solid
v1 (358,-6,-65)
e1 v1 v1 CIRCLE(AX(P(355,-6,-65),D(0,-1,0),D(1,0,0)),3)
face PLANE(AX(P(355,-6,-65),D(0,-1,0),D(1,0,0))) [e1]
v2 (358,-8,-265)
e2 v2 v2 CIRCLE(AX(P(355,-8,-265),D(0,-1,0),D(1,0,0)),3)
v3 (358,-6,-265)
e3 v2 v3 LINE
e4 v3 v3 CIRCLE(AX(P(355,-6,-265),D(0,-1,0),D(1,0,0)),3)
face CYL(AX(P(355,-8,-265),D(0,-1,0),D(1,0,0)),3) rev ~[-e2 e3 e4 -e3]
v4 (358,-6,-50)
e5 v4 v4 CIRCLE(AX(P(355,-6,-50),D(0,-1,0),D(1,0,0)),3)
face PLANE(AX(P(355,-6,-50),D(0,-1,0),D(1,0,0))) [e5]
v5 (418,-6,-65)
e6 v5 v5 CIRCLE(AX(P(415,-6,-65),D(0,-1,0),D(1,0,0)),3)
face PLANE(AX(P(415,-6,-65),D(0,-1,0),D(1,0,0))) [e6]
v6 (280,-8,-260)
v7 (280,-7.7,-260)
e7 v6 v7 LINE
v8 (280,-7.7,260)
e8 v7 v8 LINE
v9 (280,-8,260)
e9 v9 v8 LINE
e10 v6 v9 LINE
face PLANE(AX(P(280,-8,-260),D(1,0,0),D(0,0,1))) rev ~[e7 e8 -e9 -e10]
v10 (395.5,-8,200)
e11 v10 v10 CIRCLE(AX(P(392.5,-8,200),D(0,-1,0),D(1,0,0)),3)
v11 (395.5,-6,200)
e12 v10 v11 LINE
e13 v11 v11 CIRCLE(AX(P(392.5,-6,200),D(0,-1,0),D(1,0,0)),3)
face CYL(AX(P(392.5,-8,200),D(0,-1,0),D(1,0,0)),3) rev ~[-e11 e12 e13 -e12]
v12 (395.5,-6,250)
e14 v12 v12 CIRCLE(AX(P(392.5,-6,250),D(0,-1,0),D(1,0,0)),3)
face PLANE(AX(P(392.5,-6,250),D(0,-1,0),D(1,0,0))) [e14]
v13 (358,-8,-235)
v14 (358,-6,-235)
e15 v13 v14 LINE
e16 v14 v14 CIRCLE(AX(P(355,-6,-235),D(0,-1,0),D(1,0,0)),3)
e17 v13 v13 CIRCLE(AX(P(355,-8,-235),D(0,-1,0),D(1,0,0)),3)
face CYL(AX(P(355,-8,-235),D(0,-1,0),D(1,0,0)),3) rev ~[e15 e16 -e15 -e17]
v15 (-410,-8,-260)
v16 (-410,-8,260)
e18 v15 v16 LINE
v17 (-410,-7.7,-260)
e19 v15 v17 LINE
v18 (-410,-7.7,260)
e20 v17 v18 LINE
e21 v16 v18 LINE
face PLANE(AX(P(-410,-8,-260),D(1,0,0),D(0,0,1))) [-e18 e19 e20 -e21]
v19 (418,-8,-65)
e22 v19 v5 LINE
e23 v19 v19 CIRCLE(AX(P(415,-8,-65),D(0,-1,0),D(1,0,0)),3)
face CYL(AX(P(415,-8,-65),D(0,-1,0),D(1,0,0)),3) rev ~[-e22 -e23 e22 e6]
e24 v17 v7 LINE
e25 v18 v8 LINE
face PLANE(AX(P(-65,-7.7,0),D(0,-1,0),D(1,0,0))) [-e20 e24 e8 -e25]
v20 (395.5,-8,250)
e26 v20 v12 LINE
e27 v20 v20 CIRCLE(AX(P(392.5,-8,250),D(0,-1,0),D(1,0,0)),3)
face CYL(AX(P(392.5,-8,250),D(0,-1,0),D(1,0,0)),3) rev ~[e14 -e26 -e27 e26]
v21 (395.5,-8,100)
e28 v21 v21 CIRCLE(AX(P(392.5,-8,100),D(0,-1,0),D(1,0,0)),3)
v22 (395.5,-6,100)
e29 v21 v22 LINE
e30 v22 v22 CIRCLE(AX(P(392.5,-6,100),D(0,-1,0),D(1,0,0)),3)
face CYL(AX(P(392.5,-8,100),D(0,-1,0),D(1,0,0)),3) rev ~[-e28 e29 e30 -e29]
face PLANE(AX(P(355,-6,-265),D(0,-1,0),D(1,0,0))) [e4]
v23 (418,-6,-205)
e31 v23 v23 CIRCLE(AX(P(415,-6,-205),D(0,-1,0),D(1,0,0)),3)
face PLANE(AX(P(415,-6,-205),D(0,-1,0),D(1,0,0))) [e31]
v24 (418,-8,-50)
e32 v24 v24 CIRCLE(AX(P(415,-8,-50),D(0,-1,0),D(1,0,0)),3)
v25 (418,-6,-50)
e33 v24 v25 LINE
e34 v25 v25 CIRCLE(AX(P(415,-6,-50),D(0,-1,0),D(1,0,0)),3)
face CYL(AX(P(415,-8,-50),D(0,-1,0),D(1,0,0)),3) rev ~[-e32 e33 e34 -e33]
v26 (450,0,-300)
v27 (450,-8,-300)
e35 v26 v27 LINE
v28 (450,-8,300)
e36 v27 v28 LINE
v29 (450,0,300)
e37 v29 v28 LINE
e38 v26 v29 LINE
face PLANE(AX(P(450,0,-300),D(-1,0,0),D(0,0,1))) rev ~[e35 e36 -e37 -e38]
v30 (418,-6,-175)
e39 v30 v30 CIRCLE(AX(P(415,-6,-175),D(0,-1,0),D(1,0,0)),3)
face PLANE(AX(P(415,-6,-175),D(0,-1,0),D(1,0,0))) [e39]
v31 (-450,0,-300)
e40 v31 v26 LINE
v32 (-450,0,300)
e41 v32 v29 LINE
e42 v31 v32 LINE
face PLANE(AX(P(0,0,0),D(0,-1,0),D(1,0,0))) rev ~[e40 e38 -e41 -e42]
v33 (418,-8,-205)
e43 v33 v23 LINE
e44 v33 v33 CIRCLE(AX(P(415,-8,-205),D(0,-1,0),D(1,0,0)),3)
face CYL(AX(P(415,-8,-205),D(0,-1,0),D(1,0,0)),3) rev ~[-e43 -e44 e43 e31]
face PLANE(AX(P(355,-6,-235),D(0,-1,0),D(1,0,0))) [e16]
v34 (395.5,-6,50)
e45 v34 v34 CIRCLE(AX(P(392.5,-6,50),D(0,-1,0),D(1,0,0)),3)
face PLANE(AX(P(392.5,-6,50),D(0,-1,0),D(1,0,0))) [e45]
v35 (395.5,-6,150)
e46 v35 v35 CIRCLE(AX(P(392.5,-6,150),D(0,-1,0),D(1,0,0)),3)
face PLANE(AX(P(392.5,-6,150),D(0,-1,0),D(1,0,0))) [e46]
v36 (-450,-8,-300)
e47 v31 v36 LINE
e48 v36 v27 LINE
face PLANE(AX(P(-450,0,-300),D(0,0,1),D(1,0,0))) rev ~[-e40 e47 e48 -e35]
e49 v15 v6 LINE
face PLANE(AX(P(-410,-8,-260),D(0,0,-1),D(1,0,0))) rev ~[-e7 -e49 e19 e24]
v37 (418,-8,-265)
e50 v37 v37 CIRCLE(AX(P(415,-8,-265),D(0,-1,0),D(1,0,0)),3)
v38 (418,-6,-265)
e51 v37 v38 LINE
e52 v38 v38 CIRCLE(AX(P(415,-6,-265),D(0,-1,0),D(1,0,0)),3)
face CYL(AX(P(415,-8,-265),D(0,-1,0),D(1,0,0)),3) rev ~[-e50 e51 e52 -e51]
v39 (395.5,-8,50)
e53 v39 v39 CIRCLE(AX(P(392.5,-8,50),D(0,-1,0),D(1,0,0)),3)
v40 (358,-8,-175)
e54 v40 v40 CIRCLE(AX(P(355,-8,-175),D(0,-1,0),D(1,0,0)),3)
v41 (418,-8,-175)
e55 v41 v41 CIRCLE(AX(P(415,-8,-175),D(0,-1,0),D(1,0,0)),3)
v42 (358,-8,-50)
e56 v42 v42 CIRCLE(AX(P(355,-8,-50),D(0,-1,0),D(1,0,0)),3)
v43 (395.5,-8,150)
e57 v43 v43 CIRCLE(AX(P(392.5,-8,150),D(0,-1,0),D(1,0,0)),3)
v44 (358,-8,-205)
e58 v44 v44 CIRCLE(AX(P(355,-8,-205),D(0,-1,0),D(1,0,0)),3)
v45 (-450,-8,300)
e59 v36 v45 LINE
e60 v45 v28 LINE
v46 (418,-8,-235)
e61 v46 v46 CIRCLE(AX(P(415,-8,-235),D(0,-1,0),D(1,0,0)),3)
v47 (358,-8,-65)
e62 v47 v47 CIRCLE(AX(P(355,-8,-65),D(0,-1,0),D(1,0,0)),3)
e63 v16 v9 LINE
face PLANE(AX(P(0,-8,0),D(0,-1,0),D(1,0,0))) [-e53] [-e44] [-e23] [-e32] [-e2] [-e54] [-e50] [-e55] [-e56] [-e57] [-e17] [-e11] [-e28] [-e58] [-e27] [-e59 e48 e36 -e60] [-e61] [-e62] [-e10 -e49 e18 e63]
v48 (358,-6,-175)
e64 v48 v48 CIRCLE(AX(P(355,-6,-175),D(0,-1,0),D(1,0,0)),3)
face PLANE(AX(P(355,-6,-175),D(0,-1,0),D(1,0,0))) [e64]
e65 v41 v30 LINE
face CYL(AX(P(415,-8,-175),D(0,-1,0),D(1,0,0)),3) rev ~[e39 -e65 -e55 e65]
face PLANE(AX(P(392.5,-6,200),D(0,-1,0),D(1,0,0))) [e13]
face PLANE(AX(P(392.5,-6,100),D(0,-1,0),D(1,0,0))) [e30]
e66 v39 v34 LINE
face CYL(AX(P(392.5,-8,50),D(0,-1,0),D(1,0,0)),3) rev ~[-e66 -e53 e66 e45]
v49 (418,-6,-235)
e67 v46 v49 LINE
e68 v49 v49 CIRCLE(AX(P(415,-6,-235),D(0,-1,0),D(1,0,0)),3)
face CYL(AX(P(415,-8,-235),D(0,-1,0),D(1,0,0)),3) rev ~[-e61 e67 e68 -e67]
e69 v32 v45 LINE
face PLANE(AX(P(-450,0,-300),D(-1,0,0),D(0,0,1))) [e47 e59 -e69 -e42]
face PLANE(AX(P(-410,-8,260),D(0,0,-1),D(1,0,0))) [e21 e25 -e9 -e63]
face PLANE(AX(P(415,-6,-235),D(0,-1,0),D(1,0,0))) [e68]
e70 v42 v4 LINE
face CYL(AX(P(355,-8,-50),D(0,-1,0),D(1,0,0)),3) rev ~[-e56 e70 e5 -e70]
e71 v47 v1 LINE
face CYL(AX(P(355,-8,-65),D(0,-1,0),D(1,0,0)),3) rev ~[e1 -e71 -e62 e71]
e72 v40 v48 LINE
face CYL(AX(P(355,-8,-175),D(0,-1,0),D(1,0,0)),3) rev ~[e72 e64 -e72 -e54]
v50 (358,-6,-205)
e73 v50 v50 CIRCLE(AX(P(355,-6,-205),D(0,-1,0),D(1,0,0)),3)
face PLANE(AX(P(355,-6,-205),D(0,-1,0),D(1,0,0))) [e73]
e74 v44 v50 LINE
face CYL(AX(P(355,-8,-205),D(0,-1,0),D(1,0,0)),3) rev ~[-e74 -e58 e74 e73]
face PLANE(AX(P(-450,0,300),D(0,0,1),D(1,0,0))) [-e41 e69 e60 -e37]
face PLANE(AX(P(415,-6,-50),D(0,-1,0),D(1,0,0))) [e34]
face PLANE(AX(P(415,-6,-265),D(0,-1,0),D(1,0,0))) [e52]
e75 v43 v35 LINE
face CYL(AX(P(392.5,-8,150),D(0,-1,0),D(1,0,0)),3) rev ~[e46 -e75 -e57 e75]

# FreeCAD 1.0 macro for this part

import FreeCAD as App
import Part
import Sketcher


def add_polygon(sketch, points):
    """Adds a closed chain of lines whose ends are joined by coincident constraints."""
    first, n = sketch.GeometryCount, len(points)
    for a, b in zip(points, points[1:] + points[:1]):
        sketch.addGeometry(Part.LineSegment(App.Vector(*a, 0), App.Vector(*b, 0)), False)
    for i in range(n):
        sketch.addConstraint(Sketcher.Constraint("Coincident", first + i, 2, first + (i + 1) % n, 1))

doc = App.newDocument("Part")
body = doc.addObject("PartDesign::Body", "Body")

# Sketch on XZ plane
sketch1 = body.newObject("Sketcher::SketchObject", "Sketch")
sketch1.AttachmentSupport = (doc.getObject("XZ_Plane"), [""])
sketch1.MapMode = "FlatFace"
add_polygon(sketch1, [(-450, 300), (-450, -300), (450, -300), (450, 300)])  # lines 0-3
sketch1.addConstraint([
    Sketcher.Constraint("Vertical", 0),
    Sketcher.Constraint("Horizontal", 1),
    Sketcher.Constraint("Vertical", 2),
    Sketcher.Constraint("Horizontal", 3),
    Sketcher.Constraint("Symmetric", 0, 2, 2, 2, -1, 1),
    Sketcher.Constraint("DistanceX", 1, 1, 1, 2, 900.0),
    Sketcher.Constraint("DistanceY", 0, 2, 0, 1, 600.0),
])
pad1 = body.newObject("PartDesign::Pad", "Pad")
pad1.Profile = sketch1
pad1.Length = 8

# Sketch on XZ plane
sketch2 = body.newObject("Sketcher::SketchObject", "Sketch001")
sketch2.AttachmentSupport = (doc.getObject("XZ_Plane"), [""])
sketch2.MapMode = "FlatFace"
sketch2.AttachmentOffset = App.Placement(App.Vector(0, 0, 8), App.Rotation())
add_polygon(sketch2, [(-410, 260), (-410, -260), (280, -260), (280, 260)])  # lines 0-3
sketch2.addConstraint([
    Sketcher.Constraint("Vertical", 0),
    Sketcher.Constraint("Horizontal", 1),
    Sketcher.Constraint("Vertical", 2),
    Sketcher.Constraint("Horizontal", 3),
    Sketcher.Constraint("DistanceX", 1, 1, 1, 2, 690.0),
    Sketcher.Constraint("DistanceY", 0, 2, 0, 1, 520.0),
    Sketcher.Constraint("DistanceX", 0, 2, -1, 1, 410.0),
    Sketcher.Constraint("DistanceY", 0, 2, -1, 1, 260.0),
])
pocket1 = body.newObject("PartDesign::Pocket", "Pocket")
pocket1.Profile = sketch2
pocket1.Length = 0.3

# Sketch on XZ plane
sketch3 = body.newObject("Sketcher::SketchObject", "Sketch002")
sketch3.AttachmentSupport = (doc.getObject("XZ_Plane"), [""])
sketch3.MapMode = "FlatFace"
sketch3.AttachmentOffset = App.Placement(App.Vector(0, 0, 8), App.Rotation())
sketch3.addGeometry([
    Part.Circle(App.Vector(392.5, 100, 0), App.Vector(0, 0, 1), 3),  # 0
    Part.Circle(App.Vector(392.5, 150, 0), App.Vector(0, 0, 1), 3),  # 1
    Part.Circle(App.Vector(415, -65, 0), App.Vector(0, 0, 1), 3),  # 2
    Part.Circle(App.Vector(392.5, 50, 0), App.Vector(0, 0, 1), 3),  # 3
    Part.Circle(App.Vector(355, -50, 0), App.Vector(0, 0, 1), 3),  # 4
    Part.Circle(App.Vector(415, -50, 0), App.Vector(0, 0, 1), 3),  # 5
    Part.Circle(App.Vector(415, -175, 0), App.Vector(0, 0, 1), 3),  # 6
    Part.Circle(App.Vector(415, -205, 0), App.Vector(0, 0, 1), 3),  # 7
    Part.Circle(App.Vector(415, -235, 0), App.Vector(0, 0, 1), 3),  # 8
    Part.Circle(App.Vector(415, -265, 0), App.Vector(0, 0, 1), 3),  # 9
    Part.Circle(App.Vector(355, -265, 0), App.Vector(0, 0, 1), 3),  # 10
    Part.Circle(App.Vector(355, -65, 0), App.Vector(0, 0, 1), 3),  # 11
    Part.Circle(App.Vector(355, -175, 0), App.Vector(0, 0, 1), 3),  # 12
    Part.Circle(App.Vector(355, -205, 0), App.Vector(0, 0, 1), 3),  # 13
    Part.Circle(App.Vector(355, -235, 0), App.Vector(0, 0, 1), 3),  # 14
    Part.Circle(App.Vector(392.5, 200, 0), App.Vector(0, 0, 1), 3),  # 15
    Part.Circle(App.Vector(392.5, 250, 0), App.Vector(0, 0, 1), 3),  # 16
], False)
sketch3.addConstraint([
    Sketcher.Constraint("Equal", 0, 1),
    Sketcher.Constraint("Equal", 1, 2),
    Sketcher.Constraint("Equal", 2, 3),
    Sketcher.Constraint("Equal", 3, 4),
    Sketcher.Constraint("Equal", 4, 5),
    Sketcher.Constraint("Equal", 5, 6),
    Sketcher.Constraint("Equal", 6, 7),
    Sketcher.Constraint("Equal", 7, 8),
    Sketcher.Constraint("Equal", 8, 9),
    Sketcher.Constraint("Equal", 9, 10),
    Sketcher.Constraint("Equal", 10, 11),
    Sketcher.Constraint("Equal", 11, 12),
    Sketcher.Constraint("Equal", 12, 13),
    Sketcher.Constraint("Equal", 13, 14),
    Sketcher.Constraint("Equal", 14, 15),
    Sketcher.Constraint("Equal", 15, 16),
    Sketcher.Constraint("Horizontal", 4, 3, 5, 3),
    Sketcher.Constraint("Horizontal", 9, 3, 10, 3),
    Sketcher.Constraint("Horizontal", 2, 3, 11, 3),
    Sketcher.Constraint("Horizontal", 6, 3, 12, 3),
    Sketcher.Constraint("Horizontal", 7, 3, 13, 3),
    Sketcher.Constraint("Horizontal", 8, 3, 14, 3),
    Sketcher.Constraint("Vertical", 0, 3, 1, 3),
    Sketcher.Constraint("Vertical", 1, 3, 3, 3),
    Sketcher.Constraint("Vertical", 2, 3, 5, 3),
    Sketcher.Constraint("Vertical", 5, 3, 6, 3),
    Sketcher.Constraint("Vertical", 6, 3, 7, 3),
    Sketcher.Constraint("Vertical", 7, 3, 8, 3),
    Sketcher.Constraint("Vertical", 8, 3, 9, 3),
    Sketcher.Constraint("Vertical", 4, 3, 10, 3),
    Sketcher.Constraint("Vertical", 10, 3, 11, 3),
    Sketcher.Constraint("Vertical", 11, 3, 12, 3),
    Sketcher.Constraint("Vertical", 12, 3, 13, 3),
    Sketcher.Constraint("Vertical", 13, 3, 14, 3),
    Sketcher.Constraint("Vertical", 3, 3, 15, 3),
    Sketcher.Constraint("Vertical", 15, 3, 16, 3),
    Sketcher.Constraint("Diameter", 0, 6.0),
    Sketcher.Constraint("DistanceY", -1, 1, 0, 3, 100.0),
    Sketcher.Constraint("DistanceY", -1, 1, 1, 3, 150.0),
    Sketcher.Constraint("DistanceX", -1, 1, 2, 3, 415.0),
    Sketcher.Constraint("DistanceY", 2, 3, -1, 1, 65.0),
    Sketcher.Constraint("DistanceY", -1, 1, 3, 3, 50.0),
    Sketcher.Constraint("DistanceX", -1, 1, 4, 3, 355.0),
    Sketcher.Constraint("DistanceY", 4, 3, -1, 1, 50.0),
    Sketcher.Constraint("DistanceY", 6, 3, -1, 1, 175.0),
    Sketcher.Constraint("DistanceY", 7, 3, -1, 1, 205.0),
    Sketcher.Constraint("DistanceY", 8, 3, -1, 1, 235.0),
    Sketcher.Constraint("DistanceY", 9, 3, -1, 1, 265.0),
    Sketcher.Constraint("DistanceY", -1, 1, 15, 3, 200.0),
    Sketcher.Constraint("DistanceY", -1, 1, 16, 3, 250.0),
    Sketcher.Constraint("DistanceX", -1, 1, 0, 3, 392.5),
])
pocket2 = body.newObject("PartDesign::Pocket", "Pocket001")
pocket2.Profile = sketch3
pocket2.Length = 2

doc.recompute()
